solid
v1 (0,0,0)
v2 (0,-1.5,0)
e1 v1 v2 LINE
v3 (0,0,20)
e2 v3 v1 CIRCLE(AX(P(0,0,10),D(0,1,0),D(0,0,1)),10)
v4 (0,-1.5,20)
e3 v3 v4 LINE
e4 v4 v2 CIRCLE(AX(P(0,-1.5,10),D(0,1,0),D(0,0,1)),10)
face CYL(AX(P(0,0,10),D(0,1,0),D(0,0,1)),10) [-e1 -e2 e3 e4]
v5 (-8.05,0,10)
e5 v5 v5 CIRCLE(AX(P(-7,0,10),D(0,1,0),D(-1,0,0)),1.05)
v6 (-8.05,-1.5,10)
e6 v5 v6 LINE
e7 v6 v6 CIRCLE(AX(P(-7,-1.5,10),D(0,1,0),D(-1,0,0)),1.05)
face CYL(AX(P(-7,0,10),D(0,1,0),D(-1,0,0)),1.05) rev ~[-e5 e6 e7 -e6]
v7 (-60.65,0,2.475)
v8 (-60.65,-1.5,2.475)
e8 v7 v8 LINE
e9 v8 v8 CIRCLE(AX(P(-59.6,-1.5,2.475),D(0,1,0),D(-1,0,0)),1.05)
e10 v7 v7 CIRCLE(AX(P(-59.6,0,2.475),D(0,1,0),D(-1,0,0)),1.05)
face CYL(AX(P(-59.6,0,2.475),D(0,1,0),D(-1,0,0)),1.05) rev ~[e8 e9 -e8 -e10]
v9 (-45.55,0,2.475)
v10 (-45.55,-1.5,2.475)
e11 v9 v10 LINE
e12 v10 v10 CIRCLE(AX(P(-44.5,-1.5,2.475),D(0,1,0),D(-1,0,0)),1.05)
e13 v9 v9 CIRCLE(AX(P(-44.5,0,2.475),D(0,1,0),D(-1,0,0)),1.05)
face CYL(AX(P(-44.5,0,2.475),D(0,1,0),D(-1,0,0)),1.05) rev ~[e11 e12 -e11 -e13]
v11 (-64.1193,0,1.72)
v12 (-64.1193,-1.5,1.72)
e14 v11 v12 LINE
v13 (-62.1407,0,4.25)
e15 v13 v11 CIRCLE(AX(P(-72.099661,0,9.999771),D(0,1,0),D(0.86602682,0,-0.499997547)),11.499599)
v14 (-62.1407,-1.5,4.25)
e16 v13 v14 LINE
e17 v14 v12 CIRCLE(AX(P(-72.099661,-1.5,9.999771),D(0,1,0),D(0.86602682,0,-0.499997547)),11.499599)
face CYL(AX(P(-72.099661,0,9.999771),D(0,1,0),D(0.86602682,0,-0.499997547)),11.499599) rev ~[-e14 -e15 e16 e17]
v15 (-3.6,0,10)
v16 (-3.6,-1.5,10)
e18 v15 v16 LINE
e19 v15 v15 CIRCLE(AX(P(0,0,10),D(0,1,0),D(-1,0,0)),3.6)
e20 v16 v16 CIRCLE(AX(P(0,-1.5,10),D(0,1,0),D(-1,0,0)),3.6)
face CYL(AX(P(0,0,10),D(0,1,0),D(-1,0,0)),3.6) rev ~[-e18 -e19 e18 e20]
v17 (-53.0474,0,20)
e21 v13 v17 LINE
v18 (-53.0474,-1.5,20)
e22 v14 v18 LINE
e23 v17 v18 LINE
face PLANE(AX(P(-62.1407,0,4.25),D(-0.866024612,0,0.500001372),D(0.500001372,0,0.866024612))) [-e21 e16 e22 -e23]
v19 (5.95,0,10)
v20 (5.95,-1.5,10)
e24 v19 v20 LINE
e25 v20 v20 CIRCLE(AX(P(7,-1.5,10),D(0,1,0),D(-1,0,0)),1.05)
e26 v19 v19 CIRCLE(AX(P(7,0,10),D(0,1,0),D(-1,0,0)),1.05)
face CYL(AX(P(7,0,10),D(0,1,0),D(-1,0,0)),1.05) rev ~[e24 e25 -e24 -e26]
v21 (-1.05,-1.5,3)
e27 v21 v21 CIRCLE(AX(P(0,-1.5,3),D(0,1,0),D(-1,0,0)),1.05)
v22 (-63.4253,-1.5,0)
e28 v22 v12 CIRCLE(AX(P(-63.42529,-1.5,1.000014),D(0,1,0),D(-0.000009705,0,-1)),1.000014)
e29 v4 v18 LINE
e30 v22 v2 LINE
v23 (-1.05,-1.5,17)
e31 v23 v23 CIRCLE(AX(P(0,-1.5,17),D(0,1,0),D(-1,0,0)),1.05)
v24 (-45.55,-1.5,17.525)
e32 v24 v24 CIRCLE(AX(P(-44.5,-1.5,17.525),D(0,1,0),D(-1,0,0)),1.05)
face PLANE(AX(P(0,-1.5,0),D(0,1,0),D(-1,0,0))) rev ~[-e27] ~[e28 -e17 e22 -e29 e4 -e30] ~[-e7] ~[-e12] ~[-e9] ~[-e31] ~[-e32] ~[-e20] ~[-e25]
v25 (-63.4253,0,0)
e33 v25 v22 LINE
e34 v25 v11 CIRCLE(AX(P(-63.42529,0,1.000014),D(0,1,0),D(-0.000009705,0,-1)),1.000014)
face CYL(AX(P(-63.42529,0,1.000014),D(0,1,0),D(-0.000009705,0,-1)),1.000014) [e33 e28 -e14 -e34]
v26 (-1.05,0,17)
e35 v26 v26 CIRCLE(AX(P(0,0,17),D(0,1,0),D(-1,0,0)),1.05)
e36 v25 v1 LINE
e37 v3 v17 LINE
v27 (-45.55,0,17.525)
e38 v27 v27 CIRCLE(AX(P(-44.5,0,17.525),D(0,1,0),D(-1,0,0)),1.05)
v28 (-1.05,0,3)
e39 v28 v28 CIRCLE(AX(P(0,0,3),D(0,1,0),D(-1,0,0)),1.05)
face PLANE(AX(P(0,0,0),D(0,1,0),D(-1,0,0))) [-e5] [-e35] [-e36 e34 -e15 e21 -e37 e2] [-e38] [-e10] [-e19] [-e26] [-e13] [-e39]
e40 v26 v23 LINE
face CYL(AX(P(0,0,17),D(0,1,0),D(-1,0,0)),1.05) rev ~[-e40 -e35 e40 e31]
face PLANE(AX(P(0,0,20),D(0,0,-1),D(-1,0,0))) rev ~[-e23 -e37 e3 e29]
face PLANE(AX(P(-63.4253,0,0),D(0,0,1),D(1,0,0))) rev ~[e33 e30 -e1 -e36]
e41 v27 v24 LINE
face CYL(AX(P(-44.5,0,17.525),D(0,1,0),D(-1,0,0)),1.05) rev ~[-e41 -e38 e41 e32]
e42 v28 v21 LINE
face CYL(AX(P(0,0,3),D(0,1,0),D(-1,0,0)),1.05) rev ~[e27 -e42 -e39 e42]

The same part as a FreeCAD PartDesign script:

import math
import FreeCAD as App
import Part
import Sketcher
from FreeCAD import Vector
Q = App.Units.Quantity

doc = App.newDocument("Part")
body = doc.addObject("PartDesign::Body", "Body")

# Sketch on XZ plane
sketch1 = body.newObject("Sketcher::SketchObject", "Sketch")
sketch1.AttachmentSupport = (doc.getObject("XZ_Plane"), [""])
sketch1.MapMode = "FlatFace"
sketch1.addGeometry([
    Part.ArcOfCircle(Part.Circle(Vector(-72.1, 10, 0), Vector(0, 0, 1), 11.5), math.radians(-46.05), math.radians(-30)),  # 0
    Part.LineSegment(Vector(-62.1, 4.2, 0), Vector(-53, 20, 0)),  # 1
    Part.LineSegment(Vector(-53, 20, 0), Vector(0, 20, 0)),  # 2
    Part.ArcOfCircle(Part.Circle(Vector(0, 10, 0), Vector(0, 0, 1), 10), math.radians(-90), math.radians(90)),  # 3
    Part.LineSegment(Vector(0, 0, 0), Vector(-63.4, 0, 0)),  # 4
    Part.ArcOfCircle(Part.Circle(Vector(-63.4, 1, 0), Vector(0, 0, 1), 1), math.radians(134), math.radians(270)),  # 5
    Part.Circle(Vector(0, 3, 0), Vector(0, 0, 1), 1.1),  # 6
    Part.Circle(Vector(-44.5, 2.5, 0), Vector(0, 0, 1), 1.1),  # 7
    Part.Circle(Vector(-59.6, 2.5, 0), Vector(0, 0, 1), 1.1),  # 8
    Part.Circle(Vector(7, 10, 0), Vector(0, 0, 1), 1.1),  # 9
    Part.Circle(Vector(0, 10, 0), Vector(0, 0, 1), 3.6),  # 10
    Part.Circle(Vector(-7, 10, 0), Vector(0, 0, 1), 1.1),  # 11
    Part.Circle(Vector(0, 17, 0), Vector(0, 0, 1), 1.1),  # 12
    Part.Circle(Vector(-44.5, 17.5, 0), Vector(0, 0, 1), 1.1),  # 13
], False)
sketch1.addConstraint([
    Sketcher.Constraint("Tangent", 0, 2, 1, 1),
    Sketcher.Constraint("Coincident", 1, 2, 2, 1),
    Sketcher.Constraint("Tangent", 2, 2, 3, 2),
    Sketcher.Constraint("Tangent", 3, 1, 4, 1),
    Sketcher.Constraint("Tangent", 4, 2, 5, 2),
    Sketcher.Constraint("Tangent", 5, 1, 0, 1),
    Sketcher.Constraint("Horizontal", 2),
    Sketcher.Constraint("Horizontal", 4),
    Sketcher.Constraint("Coincident", 3, 1, -1, 1),
    Sketcher.Constraint("Coincident", 10, 3, 3, 3),
    Sketcher.Constraint("Equal", 6, 7),
    Sketcher.Constraint("Equal", 7, 8),
    Sketcher.Constraint("Equal", 8, 9),
    Sketcher.Constraint("Equal", 9, 11),
    Sketcher.Constraint("Equal", 11, 12),
    Sketcher.Constraint("Equal", 12, 13),
    Sketcher.Constraint("Symmetric", 9, 3, 11, 3, -2),
    Sketcher.Constraint("PointOnObject", 6, 3, -2),
    Sketcher.Constraint("PointOnObject", 12, 3, -2),
    Sketcher.Constraint("Horizontal", 0, 3, 3, 3),
    Sketcher.Constraint("Horizontal", 7, 3, 8, 3),
    Sketcher.Constraint("Horizontal", 3, 3, 9, 3),
    Sketcher.Constraint("Vertical", 7, 3, 13, 3),
    Sketcher.Constraint("Radius", 3, 10.0),
    Sketcher.Constraint("Radius", 5, 1.0),
    Sketcher.Constraint("Diameter", 6, 2.1),
    Sketcher.Constraint("Diameter", 10, 7.2),
    Sketcher.Constraint("Radius", 0, 11.5),
    Sketcher.Constraint("Angle", 1, Q("60 deg")),
    Sketcher.Constraint("DistanceY", -1, 1, 6, 3, 3.0),
    Sketcher.Constraint("DistanceX", -1, 1, 9, 3, 7.0),
    Sketcher.Constraint("DistanceY", -1, 1, 12, 3, 17.0),
    Sketcher.Constraint("DistanceX", 0, 3, -1, 1, 72.1),
    Sketcher.Constraint("DistanceX", 7, 3, -1, 1, 44.5),
    Sketcher.Constraint("DistanceX", 8, 3, -1, 1, 59.6),
    Sketcher.Constraint("DistanceY", 7, 3, 13, 3, 15.05),
    Sketcher.Constraint("DistanceY", -1, 1, 7, 3, 2.475),
])
pad1 = body.newObject("PartDesign::Pad", "Pad")
pad1.Profile = sketch1
pad1.Length = 1.5

doc.recompute()
